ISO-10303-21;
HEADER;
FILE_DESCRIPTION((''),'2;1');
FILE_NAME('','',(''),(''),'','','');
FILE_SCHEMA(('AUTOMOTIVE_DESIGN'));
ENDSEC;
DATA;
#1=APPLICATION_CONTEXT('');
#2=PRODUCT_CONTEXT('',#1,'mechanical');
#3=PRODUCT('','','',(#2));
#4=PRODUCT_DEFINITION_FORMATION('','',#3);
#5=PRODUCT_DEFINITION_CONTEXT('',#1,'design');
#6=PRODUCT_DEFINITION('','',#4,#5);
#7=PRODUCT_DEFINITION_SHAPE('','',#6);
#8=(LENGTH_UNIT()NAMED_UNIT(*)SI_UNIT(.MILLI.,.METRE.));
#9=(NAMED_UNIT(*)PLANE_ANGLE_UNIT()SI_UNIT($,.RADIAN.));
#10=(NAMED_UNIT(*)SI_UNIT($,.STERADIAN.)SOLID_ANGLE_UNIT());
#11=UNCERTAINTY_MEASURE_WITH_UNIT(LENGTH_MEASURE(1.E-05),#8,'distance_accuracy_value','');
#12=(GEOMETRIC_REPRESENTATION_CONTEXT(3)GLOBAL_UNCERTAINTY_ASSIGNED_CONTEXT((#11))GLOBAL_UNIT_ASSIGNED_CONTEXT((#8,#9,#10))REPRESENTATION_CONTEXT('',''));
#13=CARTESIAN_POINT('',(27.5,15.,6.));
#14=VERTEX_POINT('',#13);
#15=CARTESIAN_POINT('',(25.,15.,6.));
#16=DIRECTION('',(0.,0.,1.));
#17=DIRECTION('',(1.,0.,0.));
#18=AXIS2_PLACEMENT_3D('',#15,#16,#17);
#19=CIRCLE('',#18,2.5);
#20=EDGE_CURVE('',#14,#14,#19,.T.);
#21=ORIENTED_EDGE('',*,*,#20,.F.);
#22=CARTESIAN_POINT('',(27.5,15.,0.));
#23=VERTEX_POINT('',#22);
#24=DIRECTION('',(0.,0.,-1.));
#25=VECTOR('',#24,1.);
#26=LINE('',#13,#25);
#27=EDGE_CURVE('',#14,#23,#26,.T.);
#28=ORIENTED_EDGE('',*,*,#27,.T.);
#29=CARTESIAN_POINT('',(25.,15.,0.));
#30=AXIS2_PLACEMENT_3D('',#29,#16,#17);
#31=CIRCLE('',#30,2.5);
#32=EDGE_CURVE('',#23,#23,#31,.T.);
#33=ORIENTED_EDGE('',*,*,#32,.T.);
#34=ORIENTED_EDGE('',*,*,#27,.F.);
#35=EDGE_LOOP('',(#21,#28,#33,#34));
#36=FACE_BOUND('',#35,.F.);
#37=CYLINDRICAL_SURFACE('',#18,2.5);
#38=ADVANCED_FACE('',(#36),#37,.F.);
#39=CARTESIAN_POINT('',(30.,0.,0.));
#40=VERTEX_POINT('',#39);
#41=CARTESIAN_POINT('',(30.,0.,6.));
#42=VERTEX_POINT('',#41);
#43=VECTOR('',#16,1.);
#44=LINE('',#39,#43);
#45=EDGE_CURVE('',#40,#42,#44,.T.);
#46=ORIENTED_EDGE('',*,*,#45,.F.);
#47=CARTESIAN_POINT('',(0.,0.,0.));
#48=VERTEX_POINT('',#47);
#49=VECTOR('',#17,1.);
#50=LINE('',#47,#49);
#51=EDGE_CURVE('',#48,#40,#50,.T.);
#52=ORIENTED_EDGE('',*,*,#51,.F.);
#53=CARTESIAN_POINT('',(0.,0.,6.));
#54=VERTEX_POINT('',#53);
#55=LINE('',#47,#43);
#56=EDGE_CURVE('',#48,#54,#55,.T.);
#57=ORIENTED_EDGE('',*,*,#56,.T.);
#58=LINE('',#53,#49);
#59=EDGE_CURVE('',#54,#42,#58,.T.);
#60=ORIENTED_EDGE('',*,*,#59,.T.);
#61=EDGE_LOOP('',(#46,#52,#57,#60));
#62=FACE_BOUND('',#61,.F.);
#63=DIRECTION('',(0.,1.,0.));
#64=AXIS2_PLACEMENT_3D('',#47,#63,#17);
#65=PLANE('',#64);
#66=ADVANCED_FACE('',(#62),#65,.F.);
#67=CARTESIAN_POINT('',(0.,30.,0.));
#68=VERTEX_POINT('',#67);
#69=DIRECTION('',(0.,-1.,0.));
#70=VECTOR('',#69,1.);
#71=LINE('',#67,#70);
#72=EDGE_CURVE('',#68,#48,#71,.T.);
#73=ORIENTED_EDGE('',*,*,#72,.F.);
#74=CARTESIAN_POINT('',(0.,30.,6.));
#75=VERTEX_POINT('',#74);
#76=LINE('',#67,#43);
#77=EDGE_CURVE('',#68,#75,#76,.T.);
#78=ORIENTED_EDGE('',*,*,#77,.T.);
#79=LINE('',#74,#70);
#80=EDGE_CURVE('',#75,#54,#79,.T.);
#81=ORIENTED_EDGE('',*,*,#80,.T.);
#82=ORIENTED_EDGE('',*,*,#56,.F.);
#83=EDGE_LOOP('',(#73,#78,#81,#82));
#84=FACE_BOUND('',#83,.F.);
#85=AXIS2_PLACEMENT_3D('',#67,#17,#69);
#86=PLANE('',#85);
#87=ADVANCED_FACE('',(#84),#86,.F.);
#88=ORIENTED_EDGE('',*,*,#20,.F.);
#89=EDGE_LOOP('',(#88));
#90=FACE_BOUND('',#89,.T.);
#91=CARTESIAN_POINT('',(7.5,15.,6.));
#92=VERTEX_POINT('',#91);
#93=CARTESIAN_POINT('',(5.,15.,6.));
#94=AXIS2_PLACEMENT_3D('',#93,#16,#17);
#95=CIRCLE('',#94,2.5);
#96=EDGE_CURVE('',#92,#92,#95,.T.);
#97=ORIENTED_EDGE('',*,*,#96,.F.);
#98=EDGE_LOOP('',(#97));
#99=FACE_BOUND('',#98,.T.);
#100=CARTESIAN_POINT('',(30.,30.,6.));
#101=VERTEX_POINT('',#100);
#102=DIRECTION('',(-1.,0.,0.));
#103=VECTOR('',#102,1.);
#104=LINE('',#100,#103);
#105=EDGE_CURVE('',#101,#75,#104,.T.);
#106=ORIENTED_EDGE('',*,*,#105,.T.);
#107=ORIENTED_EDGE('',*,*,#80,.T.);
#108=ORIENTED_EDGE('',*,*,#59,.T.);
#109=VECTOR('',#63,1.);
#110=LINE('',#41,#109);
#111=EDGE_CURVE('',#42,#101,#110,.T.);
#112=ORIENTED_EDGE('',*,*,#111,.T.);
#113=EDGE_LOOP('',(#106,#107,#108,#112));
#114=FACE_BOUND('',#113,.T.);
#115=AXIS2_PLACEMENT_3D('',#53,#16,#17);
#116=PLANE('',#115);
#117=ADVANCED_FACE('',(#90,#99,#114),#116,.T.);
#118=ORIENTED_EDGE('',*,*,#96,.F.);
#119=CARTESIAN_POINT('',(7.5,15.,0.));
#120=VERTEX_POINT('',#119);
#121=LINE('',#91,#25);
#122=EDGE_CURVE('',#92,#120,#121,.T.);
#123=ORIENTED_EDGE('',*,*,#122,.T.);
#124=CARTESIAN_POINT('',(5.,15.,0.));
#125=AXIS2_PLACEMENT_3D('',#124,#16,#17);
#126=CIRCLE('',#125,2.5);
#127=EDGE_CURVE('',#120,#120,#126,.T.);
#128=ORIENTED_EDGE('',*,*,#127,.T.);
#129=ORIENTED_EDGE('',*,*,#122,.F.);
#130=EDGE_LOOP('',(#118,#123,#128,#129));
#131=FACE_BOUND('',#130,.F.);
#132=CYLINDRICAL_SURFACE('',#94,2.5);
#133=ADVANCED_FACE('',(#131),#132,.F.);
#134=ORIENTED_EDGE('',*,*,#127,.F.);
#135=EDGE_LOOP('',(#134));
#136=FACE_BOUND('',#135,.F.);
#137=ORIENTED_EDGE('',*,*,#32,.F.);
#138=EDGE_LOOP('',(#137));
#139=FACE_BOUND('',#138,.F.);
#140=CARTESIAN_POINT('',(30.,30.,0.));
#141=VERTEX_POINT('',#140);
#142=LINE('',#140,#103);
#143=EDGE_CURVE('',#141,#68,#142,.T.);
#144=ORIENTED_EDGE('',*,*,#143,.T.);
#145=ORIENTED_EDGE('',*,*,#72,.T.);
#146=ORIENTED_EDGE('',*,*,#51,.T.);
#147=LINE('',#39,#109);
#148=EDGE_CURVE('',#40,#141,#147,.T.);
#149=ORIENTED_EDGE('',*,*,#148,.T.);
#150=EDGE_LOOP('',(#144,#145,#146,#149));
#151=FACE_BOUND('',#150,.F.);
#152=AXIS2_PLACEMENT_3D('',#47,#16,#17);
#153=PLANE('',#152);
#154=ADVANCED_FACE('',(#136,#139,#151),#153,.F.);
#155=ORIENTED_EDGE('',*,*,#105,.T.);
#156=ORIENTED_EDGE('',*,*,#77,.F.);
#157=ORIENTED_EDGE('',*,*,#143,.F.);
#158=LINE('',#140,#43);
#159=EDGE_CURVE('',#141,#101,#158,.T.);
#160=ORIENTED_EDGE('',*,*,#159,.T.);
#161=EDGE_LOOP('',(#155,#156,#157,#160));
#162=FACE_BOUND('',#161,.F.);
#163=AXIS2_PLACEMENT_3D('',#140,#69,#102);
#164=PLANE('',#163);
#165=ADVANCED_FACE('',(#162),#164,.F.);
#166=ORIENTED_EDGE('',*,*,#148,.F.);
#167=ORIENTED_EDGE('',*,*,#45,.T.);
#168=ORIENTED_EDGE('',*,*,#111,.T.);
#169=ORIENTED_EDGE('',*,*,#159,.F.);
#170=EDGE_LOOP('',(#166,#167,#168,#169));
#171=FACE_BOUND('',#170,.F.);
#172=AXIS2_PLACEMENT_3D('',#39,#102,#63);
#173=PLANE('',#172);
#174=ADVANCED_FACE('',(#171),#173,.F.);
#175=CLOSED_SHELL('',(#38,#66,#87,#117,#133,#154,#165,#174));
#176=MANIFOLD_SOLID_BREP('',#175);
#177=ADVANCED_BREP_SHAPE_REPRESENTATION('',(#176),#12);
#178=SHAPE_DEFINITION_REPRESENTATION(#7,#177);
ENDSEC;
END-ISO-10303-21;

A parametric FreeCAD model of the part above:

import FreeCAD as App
import Part
import Sketcher
Q = App.Units.Quantity

doc = App.newDocument("Part")
body = doc.addObject("PartDesign::Body", "Body")

# Sketch on XY plane
sketch1 = body.newObject("Sketcher::SketchObject", "Sketch")
sketch1.AttachmentSupport = (doc.getObject("XY_Plane"), [""])
sketch1.MapMode = "FlatFace"
sketch1.addGeometry([
    Part.LineSegment(App.Vector(0, 30, 0), App.Vector(0, 0, 0)),
    Part.LineSegment(App.Vector(0, 0, 0), App.Vector(30, 0, 0)),
    Part.LineSegment(App.Vector(30, 0, 0), App.Vector(30, 30, 0)),
    Part.LineSegment(App.Vector(30, 30, 0), App.Vector(0, 30, 0)),
], False)
sketch1.addConstraint([
    Sketcher.Constraint("Coincident", 0, 2, 1, 1),
    Sketcher.Constraint("Coincident", 1, 2, 2, 1),
    Sketcher.Constraint("Coincident", 2, 2, 3, 1),
    Sketcher.Constraint("Coincident", 3, 2, 0, 1),
    Sketcher.Constraint("Vertical", 0),
    Sketcher.Constraint("Horizontal", 1),
    Sketcher.Constraint("Vertical", 2),
    Sketcher.Constraint("Horizontal", 3),
    Sketcher.Constraint("Coincident", 0, 2, -1, 1),
    Sketcher.Constraint("Equal", 3, 0),
    Sketcher.Constraint("DistanceX", 1, 1, 1, 2, Q("30 mm")),
])
pad1 = body.newObject("PartDesign::Pad", "Pad")
pad1.Profile = sketch1
pad1.Length = 6

# Sketch on XY plane
sketch2 = body.newObject("Sketcher::SketchObject", "Sketch001")
sketch2.AttachmentSupport = (doc.getObject("XY_Plane"), [""])
sketch2.MapMode = "FlatFace"
sketch2.AttachmentOffset = App.Placement(App.Vector(0, 0, 6), App.Rotation())
sketch2.addGeometry([
    Part.Circle(App.Vector(5, 15, 0), App.Vector(0, 0, 1), 2.5),
    Part.Circle(App.Vector(25, 15, 0), App.Vector(0, 0, 1), 2.5),
], False)
sketch2.addConstraint([
    Sketcher.Constraint("Equal", 0, 1),
    Sketcher.Constraint("Horizontal", 0, 3, 1, 3),
    Sketcher.Constraint("Diameter", 0, Q("5 mm")),
    Sketcher.Constraint("DistanceX", -1, 1, 0, 3, Q("5 mm")),
    Sketcher.Constraint("DistanceY", -1, 1, 0, 3, Q("15 mm")),
    Sketcher.Constraint("DistanceX", -1, 1, 1, 3, Q("25 mm")),
])
pocket1 = body.newObject("PartDesign::Pocket", "Pocket")
pocket1.Profile = sketch2
pocket1.Length = 6

doc.recompute()
